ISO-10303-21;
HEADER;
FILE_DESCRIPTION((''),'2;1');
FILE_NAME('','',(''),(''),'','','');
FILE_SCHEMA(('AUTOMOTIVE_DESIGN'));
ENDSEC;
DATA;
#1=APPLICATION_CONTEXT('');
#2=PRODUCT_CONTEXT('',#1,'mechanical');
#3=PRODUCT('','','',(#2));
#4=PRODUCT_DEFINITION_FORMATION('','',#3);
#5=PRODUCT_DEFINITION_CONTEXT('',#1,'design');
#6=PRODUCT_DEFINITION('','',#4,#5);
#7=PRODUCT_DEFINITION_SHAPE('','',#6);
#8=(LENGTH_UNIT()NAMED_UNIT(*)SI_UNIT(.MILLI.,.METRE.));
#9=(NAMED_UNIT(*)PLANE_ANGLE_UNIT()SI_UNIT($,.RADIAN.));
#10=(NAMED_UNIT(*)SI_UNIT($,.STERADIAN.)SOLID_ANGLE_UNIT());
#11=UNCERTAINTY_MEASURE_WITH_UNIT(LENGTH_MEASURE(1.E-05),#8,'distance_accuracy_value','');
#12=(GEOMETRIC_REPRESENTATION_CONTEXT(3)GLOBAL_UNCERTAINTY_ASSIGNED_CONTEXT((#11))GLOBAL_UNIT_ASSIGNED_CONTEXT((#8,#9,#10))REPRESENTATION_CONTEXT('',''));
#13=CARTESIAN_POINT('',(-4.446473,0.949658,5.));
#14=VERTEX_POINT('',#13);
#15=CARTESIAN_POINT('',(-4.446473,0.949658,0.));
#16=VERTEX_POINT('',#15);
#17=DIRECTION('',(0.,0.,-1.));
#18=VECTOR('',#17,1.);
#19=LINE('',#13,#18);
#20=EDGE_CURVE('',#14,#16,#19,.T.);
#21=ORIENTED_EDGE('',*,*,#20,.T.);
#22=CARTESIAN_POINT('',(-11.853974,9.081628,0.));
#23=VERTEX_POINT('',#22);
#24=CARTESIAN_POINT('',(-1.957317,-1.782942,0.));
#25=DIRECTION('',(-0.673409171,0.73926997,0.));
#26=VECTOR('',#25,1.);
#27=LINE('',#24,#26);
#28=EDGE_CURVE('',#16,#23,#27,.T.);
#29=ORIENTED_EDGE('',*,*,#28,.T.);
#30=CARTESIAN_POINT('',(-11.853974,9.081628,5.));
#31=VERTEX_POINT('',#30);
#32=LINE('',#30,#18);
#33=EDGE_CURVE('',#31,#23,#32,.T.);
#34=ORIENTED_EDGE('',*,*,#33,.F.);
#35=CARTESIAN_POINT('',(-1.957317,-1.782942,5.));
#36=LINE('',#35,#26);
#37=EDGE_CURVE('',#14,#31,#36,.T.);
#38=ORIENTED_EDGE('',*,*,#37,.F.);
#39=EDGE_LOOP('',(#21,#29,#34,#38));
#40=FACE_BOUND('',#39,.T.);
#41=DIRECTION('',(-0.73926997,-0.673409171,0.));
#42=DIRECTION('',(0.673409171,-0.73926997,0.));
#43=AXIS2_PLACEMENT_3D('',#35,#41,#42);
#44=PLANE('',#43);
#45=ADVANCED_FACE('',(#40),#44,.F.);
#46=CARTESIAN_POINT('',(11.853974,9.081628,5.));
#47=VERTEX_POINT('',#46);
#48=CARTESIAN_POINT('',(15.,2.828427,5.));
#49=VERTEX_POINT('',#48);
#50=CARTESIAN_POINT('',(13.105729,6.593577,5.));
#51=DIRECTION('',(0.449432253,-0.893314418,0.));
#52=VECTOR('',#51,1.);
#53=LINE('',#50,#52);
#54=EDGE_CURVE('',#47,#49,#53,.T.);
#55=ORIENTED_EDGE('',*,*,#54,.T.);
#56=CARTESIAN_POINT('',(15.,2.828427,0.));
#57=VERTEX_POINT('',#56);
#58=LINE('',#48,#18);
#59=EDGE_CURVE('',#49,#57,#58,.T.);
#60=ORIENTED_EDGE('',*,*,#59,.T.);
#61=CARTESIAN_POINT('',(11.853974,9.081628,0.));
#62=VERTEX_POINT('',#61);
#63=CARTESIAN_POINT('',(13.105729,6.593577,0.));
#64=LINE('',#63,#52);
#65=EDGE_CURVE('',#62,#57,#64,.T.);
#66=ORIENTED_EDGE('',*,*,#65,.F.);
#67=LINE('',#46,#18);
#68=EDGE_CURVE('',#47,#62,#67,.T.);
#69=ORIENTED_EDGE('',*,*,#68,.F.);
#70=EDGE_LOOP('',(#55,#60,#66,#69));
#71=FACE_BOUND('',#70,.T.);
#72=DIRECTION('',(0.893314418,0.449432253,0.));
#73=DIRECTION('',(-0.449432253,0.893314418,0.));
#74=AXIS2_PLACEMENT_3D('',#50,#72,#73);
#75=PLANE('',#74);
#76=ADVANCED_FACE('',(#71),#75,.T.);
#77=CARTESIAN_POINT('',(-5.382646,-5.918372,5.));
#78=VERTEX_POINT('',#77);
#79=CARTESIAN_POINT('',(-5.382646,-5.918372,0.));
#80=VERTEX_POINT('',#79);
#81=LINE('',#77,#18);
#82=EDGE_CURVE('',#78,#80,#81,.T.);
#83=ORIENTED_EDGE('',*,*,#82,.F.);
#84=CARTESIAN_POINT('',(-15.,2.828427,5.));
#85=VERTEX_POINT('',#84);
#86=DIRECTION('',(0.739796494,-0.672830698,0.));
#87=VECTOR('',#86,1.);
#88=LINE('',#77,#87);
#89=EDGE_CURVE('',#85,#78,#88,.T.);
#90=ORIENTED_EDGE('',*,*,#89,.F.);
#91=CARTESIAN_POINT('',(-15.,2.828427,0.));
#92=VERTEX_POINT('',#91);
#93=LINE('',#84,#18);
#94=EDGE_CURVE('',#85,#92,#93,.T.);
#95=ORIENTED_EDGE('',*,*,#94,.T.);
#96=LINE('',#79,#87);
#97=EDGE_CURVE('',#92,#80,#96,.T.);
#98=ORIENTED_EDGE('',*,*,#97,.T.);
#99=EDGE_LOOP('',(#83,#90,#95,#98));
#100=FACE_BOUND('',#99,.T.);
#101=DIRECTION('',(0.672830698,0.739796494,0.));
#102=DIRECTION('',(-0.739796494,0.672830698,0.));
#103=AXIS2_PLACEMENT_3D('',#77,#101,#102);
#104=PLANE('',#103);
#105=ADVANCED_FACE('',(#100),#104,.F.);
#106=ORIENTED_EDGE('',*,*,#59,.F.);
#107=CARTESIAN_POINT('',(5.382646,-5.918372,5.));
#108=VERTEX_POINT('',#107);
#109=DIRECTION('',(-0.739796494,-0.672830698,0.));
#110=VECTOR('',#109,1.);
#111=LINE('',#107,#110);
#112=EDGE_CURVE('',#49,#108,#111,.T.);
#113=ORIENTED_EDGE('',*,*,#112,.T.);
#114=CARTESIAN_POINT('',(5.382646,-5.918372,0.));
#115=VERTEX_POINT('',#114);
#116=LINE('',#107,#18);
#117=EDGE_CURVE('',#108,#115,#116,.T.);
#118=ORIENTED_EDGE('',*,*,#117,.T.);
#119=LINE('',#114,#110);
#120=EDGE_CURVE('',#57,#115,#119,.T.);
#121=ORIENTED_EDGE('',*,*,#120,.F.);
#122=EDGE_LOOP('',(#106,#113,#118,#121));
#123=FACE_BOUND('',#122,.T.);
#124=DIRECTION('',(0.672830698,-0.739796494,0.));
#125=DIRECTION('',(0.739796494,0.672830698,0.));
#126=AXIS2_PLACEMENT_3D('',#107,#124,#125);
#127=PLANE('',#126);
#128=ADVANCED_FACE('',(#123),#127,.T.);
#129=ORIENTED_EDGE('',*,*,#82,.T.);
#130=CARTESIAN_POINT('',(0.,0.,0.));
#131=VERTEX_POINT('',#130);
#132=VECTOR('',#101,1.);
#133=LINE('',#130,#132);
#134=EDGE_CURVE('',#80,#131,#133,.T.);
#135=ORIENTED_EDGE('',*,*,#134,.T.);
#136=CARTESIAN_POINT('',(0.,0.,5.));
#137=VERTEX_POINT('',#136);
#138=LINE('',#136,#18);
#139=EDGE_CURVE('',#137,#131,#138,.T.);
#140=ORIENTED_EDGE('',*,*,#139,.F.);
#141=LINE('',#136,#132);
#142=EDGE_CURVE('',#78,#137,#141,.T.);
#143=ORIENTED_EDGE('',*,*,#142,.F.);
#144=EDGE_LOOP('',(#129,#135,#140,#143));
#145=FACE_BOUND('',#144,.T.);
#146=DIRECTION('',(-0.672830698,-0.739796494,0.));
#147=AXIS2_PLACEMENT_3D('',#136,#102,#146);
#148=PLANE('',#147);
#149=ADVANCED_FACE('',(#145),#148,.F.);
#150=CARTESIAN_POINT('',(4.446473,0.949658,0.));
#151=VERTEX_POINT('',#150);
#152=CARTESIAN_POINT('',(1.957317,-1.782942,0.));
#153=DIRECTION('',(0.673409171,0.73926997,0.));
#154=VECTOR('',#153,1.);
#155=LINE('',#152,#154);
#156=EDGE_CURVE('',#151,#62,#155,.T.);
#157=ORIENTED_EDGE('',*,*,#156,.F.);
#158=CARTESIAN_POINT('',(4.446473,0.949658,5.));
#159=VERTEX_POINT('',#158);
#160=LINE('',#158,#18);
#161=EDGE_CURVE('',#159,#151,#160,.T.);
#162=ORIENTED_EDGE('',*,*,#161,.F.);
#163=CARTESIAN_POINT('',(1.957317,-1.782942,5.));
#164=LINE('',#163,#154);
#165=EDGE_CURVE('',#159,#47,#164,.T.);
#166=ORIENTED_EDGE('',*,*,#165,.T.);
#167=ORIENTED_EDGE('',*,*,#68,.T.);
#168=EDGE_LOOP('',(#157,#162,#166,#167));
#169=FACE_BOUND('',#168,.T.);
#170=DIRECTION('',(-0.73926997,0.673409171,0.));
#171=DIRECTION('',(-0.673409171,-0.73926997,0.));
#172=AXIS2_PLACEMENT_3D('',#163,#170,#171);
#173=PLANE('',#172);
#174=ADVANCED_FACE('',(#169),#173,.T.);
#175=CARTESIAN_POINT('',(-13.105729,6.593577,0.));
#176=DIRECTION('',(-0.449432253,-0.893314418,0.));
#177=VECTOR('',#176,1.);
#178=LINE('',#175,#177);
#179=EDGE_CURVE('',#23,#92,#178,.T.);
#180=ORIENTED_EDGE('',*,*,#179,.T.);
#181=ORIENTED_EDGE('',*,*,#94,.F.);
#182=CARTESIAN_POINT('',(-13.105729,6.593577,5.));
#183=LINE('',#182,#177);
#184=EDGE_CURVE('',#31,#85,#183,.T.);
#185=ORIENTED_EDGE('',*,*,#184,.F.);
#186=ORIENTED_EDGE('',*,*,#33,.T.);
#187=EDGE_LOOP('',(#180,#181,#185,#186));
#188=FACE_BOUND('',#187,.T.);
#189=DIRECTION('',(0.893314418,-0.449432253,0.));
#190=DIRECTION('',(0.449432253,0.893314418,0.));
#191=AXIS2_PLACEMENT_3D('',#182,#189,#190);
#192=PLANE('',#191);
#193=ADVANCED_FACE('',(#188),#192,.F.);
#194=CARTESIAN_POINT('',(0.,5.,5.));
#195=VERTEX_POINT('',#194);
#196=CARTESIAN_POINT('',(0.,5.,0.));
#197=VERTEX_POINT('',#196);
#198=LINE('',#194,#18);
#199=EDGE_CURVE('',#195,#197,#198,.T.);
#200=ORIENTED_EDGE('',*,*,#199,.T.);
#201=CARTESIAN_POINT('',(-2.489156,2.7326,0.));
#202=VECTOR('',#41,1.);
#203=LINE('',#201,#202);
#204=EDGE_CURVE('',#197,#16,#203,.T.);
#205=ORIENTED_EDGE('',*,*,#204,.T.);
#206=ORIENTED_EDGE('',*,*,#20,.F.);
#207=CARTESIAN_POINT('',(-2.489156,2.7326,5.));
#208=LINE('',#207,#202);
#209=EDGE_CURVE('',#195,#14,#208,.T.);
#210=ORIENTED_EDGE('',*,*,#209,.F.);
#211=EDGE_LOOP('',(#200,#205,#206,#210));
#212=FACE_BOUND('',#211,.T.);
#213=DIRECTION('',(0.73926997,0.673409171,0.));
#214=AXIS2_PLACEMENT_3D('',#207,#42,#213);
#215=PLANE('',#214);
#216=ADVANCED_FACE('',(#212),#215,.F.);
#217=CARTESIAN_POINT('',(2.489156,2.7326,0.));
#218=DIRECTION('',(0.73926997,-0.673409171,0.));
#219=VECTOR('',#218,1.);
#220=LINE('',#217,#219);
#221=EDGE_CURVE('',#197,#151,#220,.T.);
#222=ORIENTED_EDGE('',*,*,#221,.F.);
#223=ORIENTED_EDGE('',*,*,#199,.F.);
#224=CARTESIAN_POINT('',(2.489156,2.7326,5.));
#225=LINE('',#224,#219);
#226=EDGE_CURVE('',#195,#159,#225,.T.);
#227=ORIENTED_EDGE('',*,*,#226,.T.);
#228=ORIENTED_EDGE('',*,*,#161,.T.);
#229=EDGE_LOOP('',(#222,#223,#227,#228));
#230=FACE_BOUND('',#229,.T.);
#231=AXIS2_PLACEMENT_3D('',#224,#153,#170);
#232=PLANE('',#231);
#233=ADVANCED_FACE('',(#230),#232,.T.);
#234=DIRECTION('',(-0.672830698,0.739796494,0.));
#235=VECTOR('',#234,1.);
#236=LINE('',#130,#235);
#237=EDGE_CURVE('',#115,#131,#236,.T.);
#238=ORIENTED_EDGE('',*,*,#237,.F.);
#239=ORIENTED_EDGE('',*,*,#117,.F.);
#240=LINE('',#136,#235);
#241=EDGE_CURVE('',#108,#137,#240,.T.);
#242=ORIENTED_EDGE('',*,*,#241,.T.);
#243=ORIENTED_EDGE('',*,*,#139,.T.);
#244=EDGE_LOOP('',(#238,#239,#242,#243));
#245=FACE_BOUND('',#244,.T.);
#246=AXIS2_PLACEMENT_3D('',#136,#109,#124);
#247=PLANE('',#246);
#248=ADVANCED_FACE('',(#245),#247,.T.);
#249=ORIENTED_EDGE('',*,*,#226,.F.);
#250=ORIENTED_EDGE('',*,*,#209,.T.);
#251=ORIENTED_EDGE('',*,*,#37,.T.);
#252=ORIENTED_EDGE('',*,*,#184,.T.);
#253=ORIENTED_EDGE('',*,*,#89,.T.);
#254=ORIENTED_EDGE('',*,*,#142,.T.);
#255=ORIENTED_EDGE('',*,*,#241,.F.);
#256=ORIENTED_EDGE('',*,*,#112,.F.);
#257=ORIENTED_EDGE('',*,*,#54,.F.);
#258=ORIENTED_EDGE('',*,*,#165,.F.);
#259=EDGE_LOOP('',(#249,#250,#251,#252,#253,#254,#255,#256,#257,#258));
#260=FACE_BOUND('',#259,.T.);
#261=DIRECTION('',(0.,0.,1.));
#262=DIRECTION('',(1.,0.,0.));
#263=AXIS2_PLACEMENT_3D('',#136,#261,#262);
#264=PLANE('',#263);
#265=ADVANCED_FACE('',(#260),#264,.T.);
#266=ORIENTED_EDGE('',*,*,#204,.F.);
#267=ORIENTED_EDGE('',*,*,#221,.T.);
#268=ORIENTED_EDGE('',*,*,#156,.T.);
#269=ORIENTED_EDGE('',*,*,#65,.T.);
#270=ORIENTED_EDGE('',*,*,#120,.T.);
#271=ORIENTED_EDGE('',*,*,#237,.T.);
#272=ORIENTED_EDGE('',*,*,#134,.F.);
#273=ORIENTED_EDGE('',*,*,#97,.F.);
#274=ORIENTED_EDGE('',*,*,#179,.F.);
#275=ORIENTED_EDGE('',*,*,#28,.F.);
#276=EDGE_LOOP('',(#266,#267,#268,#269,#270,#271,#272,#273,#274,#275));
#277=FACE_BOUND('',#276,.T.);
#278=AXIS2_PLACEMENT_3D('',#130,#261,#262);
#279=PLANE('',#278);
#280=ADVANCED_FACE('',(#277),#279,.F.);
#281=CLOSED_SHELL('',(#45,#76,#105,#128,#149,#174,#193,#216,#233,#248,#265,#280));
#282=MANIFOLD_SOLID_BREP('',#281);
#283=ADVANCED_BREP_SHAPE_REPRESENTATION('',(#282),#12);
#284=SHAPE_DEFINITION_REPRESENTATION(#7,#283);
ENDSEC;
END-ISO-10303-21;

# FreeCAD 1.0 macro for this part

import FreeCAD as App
import Part
import Sketcher
Q = App.Units.Quantity

doc = App.newDocument("Part")
params = doc.addObject("Spreadsheet::Sheet", "Params")
for row, (alias, value) in enumerate([
    ("sketch1_length", "11 mm"),
    ("sketch1_length2", "7 mm"),
    ("sketch1_length3", "13 mm"),
    ("sketch1_length4", "8 mm"),
    ("pad1_length", "5 mm"),
], start=1):
    params.set(f"A{row}", alias)
    params.set(f"B{row}", "=" + value)
    params.setAlias(f"B{row}", alias)

body = doc.addObject("PartDesign::Body", "Body")

# Sketch on XY plane
sketch1 = body.newObject("Sketcher::SketchObject", "Sketch")
sketch1.AttachmentSupport = (doc.getObject("XY_Plane"), [""])
sketch1.MapMode = "FlatFace"
sketch1.addGeometry(Part.LineSegment(App.Vector(4, 1, 0), App.Vector(0, 5, 0)), False)
sketch1.addGeometry(Part.LineSegment(App.Vector(0, 5, 0), App.Vector(-4, 1, 0)), False)
sketch1.addGeometry(Part.LineSegment(App.Vector(-4, 1, 0), App.Vector(-12, 9, 0)), False)
sketch1.addGeometry(Part.LineSegment(App.Vector(-12, 9, 0), App.Vector(-15, 3, 0)), False)
sketch1.addGeometry(Part.LineSegment(App.Vector(-15, 3, 0), App.Vector(-5, -6, 0)), False)
sketch1.addGeometry(Part.LineSegment(App.Vector(-5, -6, 0), App.Vector(0, 0, 0)), False)
sketch1.addGeometry(Part.LineSegment(App.Vector(0, 0, 0), App.Vector(5, -6, 0)), False)
sketch1.addGeometry(Part.LineSegment(App.Vector(5, -6, 0), App.Vector(15, 3, 0)), False)
sketch1.addGeometry(Part.LineSegment(App.Vector(15, 3, 0), App.Vector(12, 9, 0)), False)
sketch1.addGeometry(Part.LineSegment(App.Vector(12, 9, 0), App.Vector(4, 1, 0)), False)
sketch1.addConstraint(Sketcher.Constraint("Coincident", 0, 2, 1, 1))
sketch1.addConstraint(Sketcher.Constraint("Coincident", 1, 2, 2, 1))
sketch1.addConstraint(Sketcher.Constraint("Coincident", 2, 2, 3, 1))
sketch1.addConstraint(Sketcher.Constraint("Coincident", 3, 2, 4, 1))
sketch1.addConstraint(Sketcher.Constraint("Coincident", 4, 2, 5, 1))
sketch1.addConstraint(Sketcher.Constraint("Coincident", 5, 2, 6, 1))
sketch1.addConstraint(Sketcher.Constraint("Coincident", 6, 2, 7, 1))
sketch1.addConstraint(Sketcher.Constraint("Coincident", 7, 2, 8, 1))
sketch1.addConstraint(Sketcher.Constraint("Coincident", 8, 2, 9, 1))
sketch1.addConstraint(Sketcher.Constraint("Coincident", 9, 2, 0, 1))
sketch1.addConstraint(Sketcher.Constraint("Coincident", 5, 2, -1, 1))
sketch1.addConstraint(Sketcher.Constraint("Symmetric", 4, 2, 6, 2, -2))
sketch1.addConstraint(Sketcher.Constraint("Symmetric", 3, 2, 7, 2, -2))
sketch1.addConstraint(Sketcher.Constraint("Symmetric", 2, 2, 8, 2, -2))
sketch1.addConstraint(Sketcher.Constraint("Symmetric", 1, 2, 9, 2, -2))
sketch1.addConstraint(Sketcher.Constraint("PointOnObject", 0, 2, -2))
sketch1.addConstraint(Sketcher.Constraint("Perpendicular", 1, 2))
sketch1.addConstraint(Sketcher.Constraint("Perpendicular", 4, 5))
sketch1.addConstraint(Sketcher.Constraint("Distance", 2, Q("11 mm")))
sketch1.addConstraint(Sketcher.Constraint("Distance", 3, Q("7 mm")))
sketch1.addConstraint(Sketcher.Constraint("Distance", 4, Q("13 mm")))
sketch1.addConstraint(Sketcher.Constraint("Distance", 5, Q("8 mm")))
sketch1.addConstraint(Sketcher.Constraint("DistanceY", -1, 1, 0, 2, Q("5 mm")))
sketch1.addConstraint(Sketcher.Constraint("DistanceX", 3, 2, -1, 1, Q("15 mm")))
sketch1.addConstraint(Sketcher.Constraint("DistanceY", 4, 2, 2, 2, Q("15 mm")))
sketch1.setExpression("Constraints[18]", "Params.sketch1_length")
sketch1.setExpression("Constraints[19]", "Params.sketch1_length2")
sketch1.setExpression("Constraints[20]", "Params.sketch1_length3")
sketch1.setExpression("Constraints[21]", "Params.sketch1_length4")
pad1 = body.newObject("PartDesign::Pad", "Pad")
pad1.Profile = sketch1
pad1.setExpression("Length", "Params.pad1_length")

doc.recompute()
